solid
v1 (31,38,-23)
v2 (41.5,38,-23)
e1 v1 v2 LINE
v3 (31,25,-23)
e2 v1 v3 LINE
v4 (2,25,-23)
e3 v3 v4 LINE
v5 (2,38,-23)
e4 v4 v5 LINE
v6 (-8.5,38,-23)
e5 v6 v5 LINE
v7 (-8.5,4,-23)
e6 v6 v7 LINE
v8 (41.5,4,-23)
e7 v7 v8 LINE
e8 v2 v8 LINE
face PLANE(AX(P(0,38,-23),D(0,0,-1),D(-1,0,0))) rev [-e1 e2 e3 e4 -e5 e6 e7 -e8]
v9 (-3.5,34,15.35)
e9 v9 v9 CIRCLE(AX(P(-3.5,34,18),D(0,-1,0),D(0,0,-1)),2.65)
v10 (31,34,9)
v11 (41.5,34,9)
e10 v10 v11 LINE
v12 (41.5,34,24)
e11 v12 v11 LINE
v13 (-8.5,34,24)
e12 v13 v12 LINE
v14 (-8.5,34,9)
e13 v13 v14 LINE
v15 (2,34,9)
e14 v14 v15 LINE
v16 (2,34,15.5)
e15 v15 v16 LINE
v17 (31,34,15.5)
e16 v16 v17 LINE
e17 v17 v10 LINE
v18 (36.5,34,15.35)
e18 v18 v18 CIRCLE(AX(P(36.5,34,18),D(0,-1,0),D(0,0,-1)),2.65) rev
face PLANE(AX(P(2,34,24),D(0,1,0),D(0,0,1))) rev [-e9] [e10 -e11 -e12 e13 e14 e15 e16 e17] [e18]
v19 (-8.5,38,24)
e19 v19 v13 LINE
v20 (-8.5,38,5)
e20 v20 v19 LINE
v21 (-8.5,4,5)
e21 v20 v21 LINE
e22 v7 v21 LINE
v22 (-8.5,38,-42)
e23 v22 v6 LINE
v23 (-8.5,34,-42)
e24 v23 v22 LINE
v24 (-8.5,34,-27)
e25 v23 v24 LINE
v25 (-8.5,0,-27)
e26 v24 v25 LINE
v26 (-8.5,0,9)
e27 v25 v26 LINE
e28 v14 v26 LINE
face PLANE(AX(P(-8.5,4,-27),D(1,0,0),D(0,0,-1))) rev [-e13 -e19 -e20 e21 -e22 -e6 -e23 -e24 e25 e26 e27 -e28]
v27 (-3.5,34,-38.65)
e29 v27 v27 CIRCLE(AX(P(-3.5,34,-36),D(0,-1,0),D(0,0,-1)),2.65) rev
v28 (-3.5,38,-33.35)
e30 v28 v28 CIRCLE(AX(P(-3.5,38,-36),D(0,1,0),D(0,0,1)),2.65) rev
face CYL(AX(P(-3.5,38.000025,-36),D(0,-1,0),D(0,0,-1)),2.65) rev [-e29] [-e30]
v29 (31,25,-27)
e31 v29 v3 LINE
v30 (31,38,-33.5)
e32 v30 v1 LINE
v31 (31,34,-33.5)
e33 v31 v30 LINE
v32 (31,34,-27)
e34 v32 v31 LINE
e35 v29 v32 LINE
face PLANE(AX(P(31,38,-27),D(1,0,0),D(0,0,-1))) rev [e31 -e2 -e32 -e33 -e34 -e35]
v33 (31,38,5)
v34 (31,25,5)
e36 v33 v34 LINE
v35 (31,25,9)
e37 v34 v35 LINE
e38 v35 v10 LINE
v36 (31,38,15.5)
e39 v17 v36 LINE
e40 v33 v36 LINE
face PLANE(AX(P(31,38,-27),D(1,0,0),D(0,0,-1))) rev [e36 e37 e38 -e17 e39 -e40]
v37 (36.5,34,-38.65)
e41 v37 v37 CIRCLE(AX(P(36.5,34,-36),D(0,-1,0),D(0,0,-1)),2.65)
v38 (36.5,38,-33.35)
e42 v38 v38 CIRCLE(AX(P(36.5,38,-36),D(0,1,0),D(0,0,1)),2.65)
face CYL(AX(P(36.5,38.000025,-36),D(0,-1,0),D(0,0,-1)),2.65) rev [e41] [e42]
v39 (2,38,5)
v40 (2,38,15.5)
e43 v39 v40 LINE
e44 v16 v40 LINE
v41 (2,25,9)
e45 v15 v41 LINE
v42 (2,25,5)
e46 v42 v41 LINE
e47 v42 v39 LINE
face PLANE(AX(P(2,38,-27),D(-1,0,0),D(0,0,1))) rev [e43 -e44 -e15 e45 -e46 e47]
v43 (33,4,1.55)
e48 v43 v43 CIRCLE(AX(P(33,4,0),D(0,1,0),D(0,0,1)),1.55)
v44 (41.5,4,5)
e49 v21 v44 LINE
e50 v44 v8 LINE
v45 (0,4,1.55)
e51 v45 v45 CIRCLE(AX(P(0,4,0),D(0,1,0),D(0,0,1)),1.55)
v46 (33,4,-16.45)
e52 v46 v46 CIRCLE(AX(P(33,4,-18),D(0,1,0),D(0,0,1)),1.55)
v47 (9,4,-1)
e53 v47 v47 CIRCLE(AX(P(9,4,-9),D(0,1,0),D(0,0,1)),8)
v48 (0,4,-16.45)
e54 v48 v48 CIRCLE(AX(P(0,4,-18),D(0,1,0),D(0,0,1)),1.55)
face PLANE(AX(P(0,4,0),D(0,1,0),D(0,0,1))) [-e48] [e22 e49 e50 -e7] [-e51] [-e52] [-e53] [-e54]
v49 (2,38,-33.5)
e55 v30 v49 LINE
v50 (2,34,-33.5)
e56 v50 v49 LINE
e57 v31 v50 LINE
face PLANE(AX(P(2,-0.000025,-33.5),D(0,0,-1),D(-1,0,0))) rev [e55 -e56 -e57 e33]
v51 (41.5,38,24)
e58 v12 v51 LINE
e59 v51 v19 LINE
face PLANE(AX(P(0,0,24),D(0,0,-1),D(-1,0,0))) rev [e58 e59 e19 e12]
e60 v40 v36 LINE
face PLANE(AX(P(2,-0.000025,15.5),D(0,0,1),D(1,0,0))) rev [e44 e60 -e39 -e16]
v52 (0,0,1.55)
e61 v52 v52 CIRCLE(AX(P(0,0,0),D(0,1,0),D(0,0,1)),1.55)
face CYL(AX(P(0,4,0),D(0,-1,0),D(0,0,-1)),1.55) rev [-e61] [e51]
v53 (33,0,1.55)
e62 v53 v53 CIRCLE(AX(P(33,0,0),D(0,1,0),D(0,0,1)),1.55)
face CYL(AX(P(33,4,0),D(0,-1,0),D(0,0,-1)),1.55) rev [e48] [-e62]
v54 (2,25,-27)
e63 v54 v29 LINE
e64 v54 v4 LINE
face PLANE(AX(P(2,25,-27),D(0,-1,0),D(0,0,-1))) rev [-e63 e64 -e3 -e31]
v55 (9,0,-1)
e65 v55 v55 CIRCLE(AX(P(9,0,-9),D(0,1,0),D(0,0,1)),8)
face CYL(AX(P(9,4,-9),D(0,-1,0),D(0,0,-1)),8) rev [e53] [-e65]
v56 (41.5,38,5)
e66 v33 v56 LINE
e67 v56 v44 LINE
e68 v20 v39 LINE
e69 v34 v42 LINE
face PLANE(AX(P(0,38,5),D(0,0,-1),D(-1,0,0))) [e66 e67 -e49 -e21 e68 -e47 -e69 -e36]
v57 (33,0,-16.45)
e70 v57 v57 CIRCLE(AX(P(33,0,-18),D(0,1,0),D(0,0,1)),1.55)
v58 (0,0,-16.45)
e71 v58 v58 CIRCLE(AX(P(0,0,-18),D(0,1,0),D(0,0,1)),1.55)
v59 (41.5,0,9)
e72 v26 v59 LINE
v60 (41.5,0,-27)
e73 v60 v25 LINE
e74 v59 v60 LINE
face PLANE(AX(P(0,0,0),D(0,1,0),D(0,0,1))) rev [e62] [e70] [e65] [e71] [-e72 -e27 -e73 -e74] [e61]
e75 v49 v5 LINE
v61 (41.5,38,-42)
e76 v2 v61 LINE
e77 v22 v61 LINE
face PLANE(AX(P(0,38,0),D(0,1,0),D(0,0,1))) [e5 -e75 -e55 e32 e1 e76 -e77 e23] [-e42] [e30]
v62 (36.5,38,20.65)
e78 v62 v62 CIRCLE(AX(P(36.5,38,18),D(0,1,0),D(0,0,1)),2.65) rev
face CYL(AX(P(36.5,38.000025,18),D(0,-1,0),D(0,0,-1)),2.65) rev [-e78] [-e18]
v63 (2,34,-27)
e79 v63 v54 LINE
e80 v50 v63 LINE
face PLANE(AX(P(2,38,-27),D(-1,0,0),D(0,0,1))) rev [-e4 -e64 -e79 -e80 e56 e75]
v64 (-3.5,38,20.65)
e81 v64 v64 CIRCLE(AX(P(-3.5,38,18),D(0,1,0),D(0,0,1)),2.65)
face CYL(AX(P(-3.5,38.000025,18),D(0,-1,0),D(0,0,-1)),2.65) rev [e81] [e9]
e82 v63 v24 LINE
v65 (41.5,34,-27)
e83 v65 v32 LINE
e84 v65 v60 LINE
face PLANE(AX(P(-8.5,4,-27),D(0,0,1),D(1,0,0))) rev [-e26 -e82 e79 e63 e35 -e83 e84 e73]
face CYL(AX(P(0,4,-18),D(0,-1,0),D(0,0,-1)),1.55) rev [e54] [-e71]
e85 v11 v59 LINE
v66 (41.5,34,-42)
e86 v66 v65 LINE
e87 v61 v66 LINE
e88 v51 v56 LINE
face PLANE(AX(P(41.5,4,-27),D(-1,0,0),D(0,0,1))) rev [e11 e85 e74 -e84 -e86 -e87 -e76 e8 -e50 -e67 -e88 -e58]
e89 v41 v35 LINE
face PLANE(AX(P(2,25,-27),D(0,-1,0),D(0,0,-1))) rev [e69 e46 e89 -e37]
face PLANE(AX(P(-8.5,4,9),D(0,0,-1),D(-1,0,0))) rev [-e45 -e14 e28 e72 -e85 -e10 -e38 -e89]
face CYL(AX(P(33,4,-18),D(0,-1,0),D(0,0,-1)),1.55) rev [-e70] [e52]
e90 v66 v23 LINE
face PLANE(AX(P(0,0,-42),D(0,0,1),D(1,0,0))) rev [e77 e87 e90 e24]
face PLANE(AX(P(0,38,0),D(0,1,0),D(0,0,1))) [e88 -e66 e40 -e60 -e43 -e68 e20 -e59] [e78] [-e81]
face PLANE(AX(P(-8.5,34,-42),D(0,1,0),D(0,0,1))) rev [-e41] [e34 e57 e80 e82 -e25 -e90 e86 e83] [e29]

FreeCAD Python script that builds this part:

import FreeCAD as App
import Part
import Sketcher
Q = App.Units.Quantity


def add_polygon(sketch, points):
    """Adds a closed chain of lines whose ends are joined by coincident constraints."""
    first, n = sketch.GeometryCount, len(points)
    for a, b in zip(points, points[1:] + points[:1]):
        sketch.addGeometry(Part.LineSegment(App.Vector(*a, 0), App.Vector(*b, 0)), False)
    for i in range(n):
        sketch.addConstraint(Sketcher.Constraint("Coincident", first + i, 2, first + (i + 1) % n, 1))

doc = App.newDocument("Part")
body = doc.addObject("PartDesign::Body", "Body")

sketch1 = body.newObject("Sketcher::SketchObject", "Sketch")
sketch1.AttachmentSupport = (doc.getObject("XZ_Plane"), [""])
sketch1.MapMode = "FlatFace"
add_polygon(sketch1, [(-8.5, -27), (-8.5, 9), (41.5, 9), (41.5, -27)])
sketch1.addGeometry(Part.Circle(App.Vector(0, 0, 0), App.Vector(0, 0, 1), 1.6), False)
sketch1.addGeometry(Part.Circle(App.Vector(33, 0, 0), App.Vector(0, 0, 1), 1.6), False)
sketch1.addGeometry(Part.Circle(App.Vector(9, -9, 0), App.Vector(0, 0, 1), 8), False)
sketch1.addGeometry(Part.Circle(App.Vector(0, -18, 0), App.Vector(0, 0, 1), 1.6), False)
sketch1.addGeometry(Part.Circle(App.Vector(33, -18, 0), App.Vector(0, 0, 1), 1.6), False)
sketch1.addConstraint([
    Sketcher.Constraint("Vertical", 0),
    Sketcher.Constraint("Horizontal", 1),
    Sketcher.Constraint("Vertical", 2),
    Sketcher.Constraint("Horizontal", 3),
    Sketcher.Constraint("Coincident", 4, 3, -1, 1),
    Sketcher.Constraint("Equal", 4, 5),
    Sketcher.Constraint("Equal", 5, 7),
    Sketcher.Constraint("Equal", 7, 8),
    Sketcher.Constraint("PointOnObject", 5, 3, -1),
    Sketcher.Constraint("PointOnObject", 7, 3, -2),
    Sketcher.Constraint("Horizontal", 7, 3, 8, 3),
    Sketcher.Constraint("Vertical", 5, 3, 8, 3),
    Sketcher.Constraint("Diameter", 6, Q("16 mm")),
    Sketcher.Constraint("Diameter", 4, Q("3.1 mm")),
    Sketcher.Constraint("DistanceX", 1, 1, 1, 2, Q("50 mm")),
    Sketcher.Constraint("DistanceY", 0, 1, 0, 2, Q("36 mm")),
    Sketcher.Constraint("DistanceX", -1, 1, 5, 3, Q("33 mm")),
    Sketcher.Constraint("DistanceX", -1, 1, 6, 3, Q("9 mm")),
    Sketcher.Constraint("DistanceY", 6, 3, -1, 1, Q("9 mm")),
    Sketcher.Constraint("DistanceY", 7, 3, -1, 1, Q("18 mm")),
    Sketcher.Constraint("DistanceY", -1, 1, 0, 2, Q("9 mm")),
    Sketcher.Constraint("DistanceX", 0, 2, -1, 1, Q("8.5 mm")),
])
pad1 = body.newObject("PartDesign::Pad", "Pad")
pad1.Profile = sketch1
pad1.Length = 4
pad1.Reversed = True

sketch2 = body.newObject("Sketcher::SketchObject", "Sketch001")
sketch2.AttachmentSupport = (doc.getObject("XZ_Plane"), [""])
sketch2.MapMode = "FlatFace"
sketch2.AttachmentOffset = App.Placement(App.Vector(0, 0, -4), App.Rotation())
add_polygon(sketch2, [(-8.5, 5), (-8.5, 9), (41.5, 9), (41.5, 5)])
add_polygon(sketch2, [(-8.5, -27), (-8.5, -23), (41.5, -23), (41.5, -27)])
sketch2.addConstraint([
    Sketcher.Constraint("Vertical", 0),
    Sketcher.Constraint("Horizontal", 1),
    Sketcher.Constraint("Vertical", 2),
    Sketcher.Constraint("Horizontal", 3),
    Sketcher.Constraint("Vertical", 4),
    Sketcher.Constraint("Horizontal", 5),
    Sketcher.Constraint("Vertical", 6),
    Sketcher.Constraint("Horizontal", 7),
    Sketcher.Constraint("Vertical", 3, 2, 4, 2),
    Sketcher.Constraint("Vertical", 2, 2, 5, 2),
    Sketcher.Constraint("Equal", 2, 4),
    Sketcher.Constraint("DistanceX", 1, 1, 1, 2, Q("50 mm")),
    Sketcher.Constraint("DistanceY", 0, 1, 0, 2, Q("4 mm")),
    Sketcher.Constraint("DistanceY", -1, 1, 0, 2, Q("9 mm")),
    Sketcher.Constraint("DistanceY", 4, 2, -1, 1, Q("23 mm")),
    Sketcher.Constraint("DistanceX", 0, 2, -1, 1, Q("8.5 mm")),
])
pad2 = body.newObject("PartDesign::Pad", "Pad001")
pad2.Profile = sketch2
pad2.Length = 34
pad2.Reversed = True

sketch3 = body.newObject("Sketcher::SketchObject", "Sketch002")
sketch3.AttachmentSupport = (doc.getObject("XY_Plane"), [""])
sketch3.MapMode = "FlatFace"
sketch3.AttachmentOffset = App.Placement(App.Vector(0, 0, 9), App.Rotation())
add_polygon(sketch3, [(2, 38), (2, 25), (31, 25), (31, 38)])
sketch3.addConstraint([
    Sketcher.Constraint("Vertical", 0),
    Sketcher.Constraint("Horizontal", 1),
    Sketcher.Constraint("Vertical", 2),
    Sketcher.Constraint("Horizontal", 3),
    Sketcher.Constraint("DistanceX", 1, 1, 1, 2, Q("29 mm")),
    Sketcher.Constraint("DistanceY", 0, 2, 0, 1, Q("13 mm")),
    Sketcher.Constraint("DistanceX", -1, 1, 0, 2, Q("2 mm")),
    Sketcher.Constraint("DistanceY", -1, 1, 0, 2, Q("25 mm")),
])
pocket1 = body.newObject("PartDesign::Pocket", "Pocket")
pocket1.Profile = sketch3
pocket1.Type = "ThroughAll"

sketch4 = body.newObject("Sketcher::SketchObject", "Sketch003")
sketch4.AttachmentSupport = (doc.getObject("XY_Plane"), [""])
sketch4.MapMode = "FlatFace"
sketch4.AttachmentOffset = App.Placement(App.Vector(0, 0, 9), App.Rotation())
add_polygon(sketch4, [(41.5, 38), (-8.5, 38), (-8.5, 34), (41.5, 34)])
sketch4.addConstraint([
    Sketcher.Constraint("Horizontal", 0),
    Sketcher.Constraint("Vertical", 1),
    Sketcher.Constraint("Horizontal", 2),
    Sketcher.Constraint("Vertical", 3),
    Sketcher.Constraint("DistanceX", 0, 2, 0, 1, Q("50 mm")),
    Sketcher.Constraint("DistanceY", 1, 2, 1, 1, Q("4 mm")),
    Sketcher.Constraint("DistanceY", -1, 1, 0, 2, Q("38 mm")),
    Sketcher.Constraint("DistanceX", 0, 2, -1, 1, Q("8.5 mm")),
])
pad3 = body.newObject("PartDesign::Pad", "Pad002")
pad3.Profile = sketch4
pad3.Length = 15

sketch5 = body.newObject("Sketcher::SketchObject", "Sketch004")
sketch5.AttachmentSupport = (doc.getObject("XY_Plane"), [""])
sketch5.MapMode = "FlatFace"
sketch5.AttachmentOffset = App.Placement(App.Vector(0, 0, -27), App.Rotation())
add_polygon(sketch5, [(41.5, 38), (41.5, 34), (-8.5, 34), (-8.5, 38)])
sketch5.addConstraint([
    Sketcher.Constraint("Vertical", 0),
    Sketcher.Constraint("Horizontal", 1),
    Sketcher.Constraint("Vertical", 2),
    Sketcher.Constraint("Horizontal", 3),
    Sketcher.Constraint("DistanceX", 1, 2, 1, 1, Q("50 mm")),
    Sketcher.Constraint("DistanceY", 0, 2, 0, 1, Q("4 mm")),
    Sketcher.Constraint("DistanceY", -1, 1, 0, 2, Q("34 mm")),
    Sketcher.Constraint("DistanceX", -1, 1, 0, 2, Q("41.5 mm")),
])
pad4 = body.newObject("PartDesign::Pad", "Pad003")
pad4.Profile = sketch5
pad4.Length = 15
pad4.Reversed = True

sketch6 = body.newObject("Sketcher::SketchObject", "Sketch005")
sketch6.AttachmentSupport = (doc.getObject("XZ_Plane"), [""])
sketch6.MapMode = "FlatFace"
sketch6.AttachmentOffset = App.Placement(App.Vector(0, 0, -38), App.Rotation())
add_polygon(sketch6, [(2, -34), (2, -27), (31, -27), (31, -34)])
add_polygon(sketch6, [(2, 9), (2, 16), (31, 16), (31, 9)])
sketch6.addConstraint([
    Sketcher.Constraint("Vertical", 0),
    Sketcher.Constraint("Horizontal", 1),
    Sketcher.Constraint("Vertical", 2),
    Sketcher.Constraint("Horizontal", 3),
    Sketcher.Constraint("Vertical", 4),
    Sketcher.Constraint("Horizontal", 5),
    Sketcher.Constraint("Vertical", 6),
    Sketcher.Constraint("Horizontal", 7),
    Sketcher.Constraint("Vertical", 3, 2, 4, 2),
    Sketcher.Constraint("Vertical", 2, 2, 5, 2),
    Sketcher.Constraint("Equal", 2, 4),
    Sketcher.Constraint("DistanceX", 1, 1, 1, 2, Q("29 mm")),
    Sketcher.Constraint("DistanceY", 0, 1, 0, 2, Q("6.5 mm")),
    Sketcher.Constraint("DistanceX", -1, 1, 0, 2, Q("2 mm")),
    Sketcher.Constraint("DistanceY", 0, 2, -1, 1, Q("27 mm")),
    Sketcher.Constraint("DistanceY", -1, 1, 6, 2, Q("9 mm")),
])
pocket2 = body.newObject("PartDesign::Pocket", "Pocket001")
pocket2.Profile = sketch6
pocket2.Type = "ThroughAll"
pocket2.Reversed = True

sketch7 = body.newObject("Sketcher::SketchObject", "Sketch006")
sketch7.AttachmentSupport = (doc.getObject("XZ_Plane"), [""])
sketch7.MapMode = "FlatFace"
sketch7.AttachmentOffset = App.Placement(App.Vector(0, 0, -34), App.Rotation())
sketch7.addGeometry([
    Part.Circle(App.Vector(36.5, -36, 0), App.Vector(0, 0, 1), 2.6),
    Part.Circle(App.Vector(-3.5, -36, 0), App.Vector(0, 0, 1), 2.6),
    Part.Circle(App.Vector(-3.5, 18, 0), App.Vector(0, 0, 1), 2.6),
    Part.Circle(App.Vector(36.5, 18, 0), App.Vector(0, 0, 1), 2.6),
], False)
sketch7.addConstraint([
    Sketcher.Constraint("Equal", 0, 1),
    Sketcher.Constraint("Equal", 1, 2),
    Sketcher.Constraint("Equal", 2, 3),
    Sketcher.Constraint("Horizontal", 0, 3, 1, 3),
    Sketcher.Constraint("Horizontal", 2, 3, 3, 3),
    Sketcher.Constraint("Vertical", 1, 3, 2, 3),
    Sketcher.Constraint("Vertical", 0, 3, 3, 3),
    Sketcher.Constraint("Diameter", 0, Q("5.3 mm")),
    Sketcher.Constraint("DistanceY", 0, 3, -1, 1, Q("36 mm")),
    Sketcher.Constraint("DistanceY", -1, 1, 2, 3, Q("18 mm")),
    Sketcher.Constraint("DistanceX", 1, 3, 0, 3, Q("40 mm")),
    Sketcher.Constraint("DistanceX", -1, 1, 0, 3, Q("36.5 mm")),
])
pocket3 = body.newObject("PartDesign::Pocket", "Pocket002")
pocket3.Profile = sketch7
pocket3.Type = "ThroughAll"

doc.recompute()
